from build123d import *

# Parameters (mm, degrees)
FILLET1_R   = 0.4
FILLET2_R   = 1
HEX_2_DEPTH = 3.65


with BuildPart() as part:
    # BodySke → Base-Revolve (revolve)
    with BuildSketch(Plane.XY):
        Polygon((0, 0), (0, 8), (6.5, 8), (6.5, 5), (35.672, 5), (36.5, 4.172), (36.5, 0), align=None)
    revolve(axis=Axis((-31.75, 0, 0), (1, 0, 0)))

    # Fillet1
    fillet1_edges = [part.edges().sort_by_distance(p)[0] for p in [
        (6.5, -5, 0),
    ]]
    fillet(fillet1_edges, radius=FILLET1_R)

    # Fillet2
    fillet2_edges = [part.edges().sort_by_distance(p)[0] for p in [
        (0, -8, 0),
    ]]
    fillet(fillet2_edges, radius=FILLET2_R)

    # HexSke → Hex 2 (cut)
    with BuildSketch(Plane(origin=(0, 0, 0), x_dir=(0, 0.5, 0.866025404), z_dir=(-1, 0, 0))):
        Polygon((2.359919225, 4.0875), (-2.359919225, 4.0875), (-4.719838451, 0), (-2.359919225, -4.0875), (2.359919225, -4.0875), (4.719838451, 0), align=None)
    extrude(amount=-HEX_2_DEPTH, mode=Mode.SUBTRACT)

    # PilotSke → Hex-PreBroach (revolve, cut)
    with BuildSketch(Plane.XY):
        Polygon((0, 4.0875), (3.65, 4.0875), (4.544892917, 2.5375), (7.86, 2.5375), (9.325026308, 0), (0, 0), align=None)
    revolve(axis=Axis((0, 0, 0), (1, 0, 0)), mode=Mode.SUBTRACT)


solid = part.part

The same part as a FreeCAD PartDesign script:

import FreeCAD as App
import Part
import Sketcher
Q = App.Units.Quantity


def edges_at(feature, points):
    """Names of the edges that pass closest to the given points."""
    edges = feature.Shape.Edges
    near = lambda p: min(range(len(edges)), key=lambda i: edges[i].distToShape(Part.Vertex(*p))[0])
    return sorted({f"Edge{near(p) + 1}" for p in points})

doc = App.newDocument("Part")
body = doc.addObject("PartDesign::Body", "Body")

# Sketch on XY plane
sketch1 = body.newObject("Sketcher::SketchObject", "Sketch")
sketch1.AttachmentSupport = (doc.getObject("XY_Plane"), [""])
sketch1.MapMode = "FlatFace"
sketch1.addGeometry([
    Part.LineSegment(App.Vector(0, 8, 0), App.Vector(0, 0, 0)),  # 0
    Part.LineSegment(App.Vector(0, 0, 0), App.Vector(36.5, 0, 0)),  # 1
    Part.LineSegment(App.Vector(36.5, 0, 0), App.Vector(36.5, 4.172, 0)),  # 2
    Part.LineSegment(App.Vector(36.5, 4.172, 0), App.Vector(35.672, 5, 0)),  # 3
    Part.LineSegment(App.Vector(35.672, 5, 0), App.Vector(6.5, 5, 0)),  # 4
    Part.LineSegment(App.Vector(6.5, 5, 0), App.Vector(6.5, 8, 0)),  # 5
    Part.LineSegment(App.Vector(6.5, 8, 0), App.Vector(0, 8, 0)),  # 6
], False)
sketch1.addConstraint([
    Sketcher.Constraint("Coincident", 0, 2, 1, 1),
    Sketcher.Constraint("Coincident", 1, 2, 2, 1),
    Sketcher.Constraint("Coincident", 2, 2, 3, 1),
    Sketcher.Constraint("Coincident", 3, 2, 4, 1),
    Sketcher.Constraint("Coincident", 4, 2, 5, 1),
    Sketcher.Constraint("Coincident", 5, 2, 6, 1),
    Sketcher.Constraint("Coincident", 6, 2, 0, 1),
    Sketcher.Constraint("Vertical", 0),
    Sketcher.Constraint("Horizontal", 1),
    Sketcher.Constraint("Vertical", 2),
    Sketcher.Constraint("Horizontal", 4),
    Sketcher.Constraint("Vertical", 5),
    Sketcher.Constraint("Horizontal", 6),
    Sketcher.Constraint("Coincident", 0, 2, -1, 1),
    Sketcher.Constraint("DistanceY", 0, 2, 0, 1, Q("8 mm")),
    Sketcher.Constraint("DistanceY", 5, 1, 5, 2, Q("3 mm")),
    Sketcher.Constraint("Angle", 3, Q("135 deg")),
    Sketcher.Constraint("DistanceX", 1, 1, 1, 2, Q("36.5 mm")),
    Sketcher.Constraint("DistanceX", 6, 2, 6, 1, Q("6.5 mm")),
    Sketcher.Constraint("DistanceX", 4, 2, 4, 1, Q("29.172 mm")),
])
revolution = body.newObject("PartDesign::Revolution", "Revolution")
revolution.Profile = sketch1
revolution.ReferenceAxis = (sketch1, ["H_Axis"])
revolution.Angle = 360
doc.recompute()

fillet = body.newObject("PartDesign::Fillet", "Fillet")
fillet.Base = (revolution, edges_at(revolution, [(6.5, -5, 0)]))
fillet.Radius = 0.4
doc.recompute()

fillet2 = body.newObject("PartDesign::Fillet", "Fillet001")
fillet2.Base = (fillet, edges_at(fillet, [(0, -8, 0)]))
fillet2.Radius = 1

# Sketch on YZ plane
sketch2 = body.newObject("Sketcher::SketchObject", "Sketch001")
sketch2.AttachmentSupport = (doc.getObject("YZ_Plane"), [""])
sketch2.MapMode = "FlatFace"
sketch2.addGeometry([
    Part.LineSegment(App.Vector(4.719838, 0, 0), App.Vector(2.359919, -4.0875, 0)),  # 0
    Part.LineSegment(App.Vector(2.359919, -4.0875, 0), App.Vector(-2.359919, -4.0875, 0)),  # 1
    Part.LineSegment(App.Vector(-2.359919, -4.0875, 0), App.Vector(-4.719838, 0, 0)),  # 2
    Part.LineSegment(App.Vector(-4.719838, 0, 0), App.Vector(-2.359919, 4.0875, 0)),  # 3
    Part.LineSegment(App.Vector(-2.359919, 4.0875, 0), App.Vector(2.359919, 4.0875, 0)),  # 4
    Part.LineSegment(App.Vector(2.359919, 4.0875, 0), App.Vector(4.719838, 0, 0)),  # 5
], False)
sketch2.addConstraint([
    Sketcher.Constraint("Coincident", 0, 2, 1, 1),
    Sketcher.Constraint("Coincident", 1, 2, 2, 1),
    Sketcher.Constraint("Coincident", 2, 2, 3, 1),
    Sketcher.Constraint("Coincident", 3, 2, 4, 1),
    Sketcher.Constraint("Coincident", 4, 2, 5, 1),
    Sketcher.Constraint("Coincident", 5, 2, 0, 1),
    Sketcher.Constraint("Horizontal", 1),
    Sketcher.Constraint("Horizontal", 4),
    Sketcher.Constraint("Symmetric", 0, 2, 3, 2, -1, 1),
    Sketcher.Constraint("Symmetric", 2, 2, 5, 2, -1, 1),
    Sketcher.Constraint("PointOnObject", 2, 2, -1),
    Sketcher.Constraint("Parallel", 2, 5),
    Sketcher.Constraint("Vertical", 1, 2, 3, 2),
    Sketcher.Constraint("Angle", 0, Q("-120 deg")),
    Sketcher.Constraint("DistanceY", 1, 2, 3, 2, Q("8.175 mm")),
    Sketcher.Constraint("DistanceX", 1, 2, 1, 1, Q("4.719838 mm")),
])
pocket1 = body.newObject("PartDesign::Pocket", "Pocket")
pocket1.Profile = sketch2
pocket1.Length = 3.65
pocket1.Reversed = True

# Sketch on XY plane
sketch3 = body.newObject("Sketcher::SketchObject", "Sketch002")
sketch3.AttachmentSupport = (doc.getObject("XY_Plane"), [""])
sketch3.MapMode = "FlatFace"
sketch3.addGeometry([
    Part.LineSegment(App.Vector(3.65, 4.0875, 0), App.Vector(0, 4.0875, 0)),  # 0
    Part.LineSegment(App.Vector(0, 4.0875, 0), App.Vector(0, 0, 0)),  # 1
    Part.LineSegment(App.Vector(0, 0, 0), App.Vector(9.325026, 0, 0)),  # 2
    Part.LineSegment(App.Vector(9.325026, 0, 0), App.Vector(7.86, 2.5375, 0)),  # 3
    Part.LineSegment(App.Vector(7.86, 2.5375, 0), App.Vector(4.544893, 2.5375, 0)),  # 4
    Part.LineSegment(App.Vector(4.544893, 2.5375, 0), App.Vector(3.65, 4.0875, 0)),  # 5
], False)
sketch3.addConstraint([
    Sketcher.Constraint("Coincident", 0, 2, 1, 1),
    Sketcher.Constraint("Coincident", 1, 2, 2, 1),
    Sketcher.Constraint("Coincident", 2, 2, 3, 1),
    Sketcher.Constraint("Coincident", 3, 2, 4, 1),
    Sketcher.Constraint("Coincident", 4, 2, 5, 1),
    Sketcher.Constraint("Coincident", 5, 2, 0, 1),
    Sketcher.Constraint("Horizontal", 0),
    Sketcher.Constraint("Vertical", 1),
    Sketcher.Constraint("Horizontal", 2),
    Sketcher.Constraint("Horizontal", 4),
    Sketcher.Constraint("Coincident", 1, 2, -1, 1),
    Sketcher.Constraint("Parallel", 3, 5),
    Sketcher.Constraint("Angle", 3, Q("120 deg")),
    Sketcher.Constraint("DistanceX", 0, 2, 0, 1, Q("3.65 mm")),
    Sketcher.Constraint("DistanceX", -1, 1, 3, 2, Q("7.86 mm")),
    Sketcher.Constraint("DistanceY", 3, 2, 0, 2, Q("1.55 mm")),
    Sketcher.Constraint("DistanceY", 1, 2, 1, 1, Q("4.0875 mm")),
])
groove = body.newObject("PartDesign::Groove", "Groove")
groove.Profile = sketch3
groove.ReferenceAxis = (sketch3, ["H_Axis"])
groove.Angle = 360

doc.recompute()
